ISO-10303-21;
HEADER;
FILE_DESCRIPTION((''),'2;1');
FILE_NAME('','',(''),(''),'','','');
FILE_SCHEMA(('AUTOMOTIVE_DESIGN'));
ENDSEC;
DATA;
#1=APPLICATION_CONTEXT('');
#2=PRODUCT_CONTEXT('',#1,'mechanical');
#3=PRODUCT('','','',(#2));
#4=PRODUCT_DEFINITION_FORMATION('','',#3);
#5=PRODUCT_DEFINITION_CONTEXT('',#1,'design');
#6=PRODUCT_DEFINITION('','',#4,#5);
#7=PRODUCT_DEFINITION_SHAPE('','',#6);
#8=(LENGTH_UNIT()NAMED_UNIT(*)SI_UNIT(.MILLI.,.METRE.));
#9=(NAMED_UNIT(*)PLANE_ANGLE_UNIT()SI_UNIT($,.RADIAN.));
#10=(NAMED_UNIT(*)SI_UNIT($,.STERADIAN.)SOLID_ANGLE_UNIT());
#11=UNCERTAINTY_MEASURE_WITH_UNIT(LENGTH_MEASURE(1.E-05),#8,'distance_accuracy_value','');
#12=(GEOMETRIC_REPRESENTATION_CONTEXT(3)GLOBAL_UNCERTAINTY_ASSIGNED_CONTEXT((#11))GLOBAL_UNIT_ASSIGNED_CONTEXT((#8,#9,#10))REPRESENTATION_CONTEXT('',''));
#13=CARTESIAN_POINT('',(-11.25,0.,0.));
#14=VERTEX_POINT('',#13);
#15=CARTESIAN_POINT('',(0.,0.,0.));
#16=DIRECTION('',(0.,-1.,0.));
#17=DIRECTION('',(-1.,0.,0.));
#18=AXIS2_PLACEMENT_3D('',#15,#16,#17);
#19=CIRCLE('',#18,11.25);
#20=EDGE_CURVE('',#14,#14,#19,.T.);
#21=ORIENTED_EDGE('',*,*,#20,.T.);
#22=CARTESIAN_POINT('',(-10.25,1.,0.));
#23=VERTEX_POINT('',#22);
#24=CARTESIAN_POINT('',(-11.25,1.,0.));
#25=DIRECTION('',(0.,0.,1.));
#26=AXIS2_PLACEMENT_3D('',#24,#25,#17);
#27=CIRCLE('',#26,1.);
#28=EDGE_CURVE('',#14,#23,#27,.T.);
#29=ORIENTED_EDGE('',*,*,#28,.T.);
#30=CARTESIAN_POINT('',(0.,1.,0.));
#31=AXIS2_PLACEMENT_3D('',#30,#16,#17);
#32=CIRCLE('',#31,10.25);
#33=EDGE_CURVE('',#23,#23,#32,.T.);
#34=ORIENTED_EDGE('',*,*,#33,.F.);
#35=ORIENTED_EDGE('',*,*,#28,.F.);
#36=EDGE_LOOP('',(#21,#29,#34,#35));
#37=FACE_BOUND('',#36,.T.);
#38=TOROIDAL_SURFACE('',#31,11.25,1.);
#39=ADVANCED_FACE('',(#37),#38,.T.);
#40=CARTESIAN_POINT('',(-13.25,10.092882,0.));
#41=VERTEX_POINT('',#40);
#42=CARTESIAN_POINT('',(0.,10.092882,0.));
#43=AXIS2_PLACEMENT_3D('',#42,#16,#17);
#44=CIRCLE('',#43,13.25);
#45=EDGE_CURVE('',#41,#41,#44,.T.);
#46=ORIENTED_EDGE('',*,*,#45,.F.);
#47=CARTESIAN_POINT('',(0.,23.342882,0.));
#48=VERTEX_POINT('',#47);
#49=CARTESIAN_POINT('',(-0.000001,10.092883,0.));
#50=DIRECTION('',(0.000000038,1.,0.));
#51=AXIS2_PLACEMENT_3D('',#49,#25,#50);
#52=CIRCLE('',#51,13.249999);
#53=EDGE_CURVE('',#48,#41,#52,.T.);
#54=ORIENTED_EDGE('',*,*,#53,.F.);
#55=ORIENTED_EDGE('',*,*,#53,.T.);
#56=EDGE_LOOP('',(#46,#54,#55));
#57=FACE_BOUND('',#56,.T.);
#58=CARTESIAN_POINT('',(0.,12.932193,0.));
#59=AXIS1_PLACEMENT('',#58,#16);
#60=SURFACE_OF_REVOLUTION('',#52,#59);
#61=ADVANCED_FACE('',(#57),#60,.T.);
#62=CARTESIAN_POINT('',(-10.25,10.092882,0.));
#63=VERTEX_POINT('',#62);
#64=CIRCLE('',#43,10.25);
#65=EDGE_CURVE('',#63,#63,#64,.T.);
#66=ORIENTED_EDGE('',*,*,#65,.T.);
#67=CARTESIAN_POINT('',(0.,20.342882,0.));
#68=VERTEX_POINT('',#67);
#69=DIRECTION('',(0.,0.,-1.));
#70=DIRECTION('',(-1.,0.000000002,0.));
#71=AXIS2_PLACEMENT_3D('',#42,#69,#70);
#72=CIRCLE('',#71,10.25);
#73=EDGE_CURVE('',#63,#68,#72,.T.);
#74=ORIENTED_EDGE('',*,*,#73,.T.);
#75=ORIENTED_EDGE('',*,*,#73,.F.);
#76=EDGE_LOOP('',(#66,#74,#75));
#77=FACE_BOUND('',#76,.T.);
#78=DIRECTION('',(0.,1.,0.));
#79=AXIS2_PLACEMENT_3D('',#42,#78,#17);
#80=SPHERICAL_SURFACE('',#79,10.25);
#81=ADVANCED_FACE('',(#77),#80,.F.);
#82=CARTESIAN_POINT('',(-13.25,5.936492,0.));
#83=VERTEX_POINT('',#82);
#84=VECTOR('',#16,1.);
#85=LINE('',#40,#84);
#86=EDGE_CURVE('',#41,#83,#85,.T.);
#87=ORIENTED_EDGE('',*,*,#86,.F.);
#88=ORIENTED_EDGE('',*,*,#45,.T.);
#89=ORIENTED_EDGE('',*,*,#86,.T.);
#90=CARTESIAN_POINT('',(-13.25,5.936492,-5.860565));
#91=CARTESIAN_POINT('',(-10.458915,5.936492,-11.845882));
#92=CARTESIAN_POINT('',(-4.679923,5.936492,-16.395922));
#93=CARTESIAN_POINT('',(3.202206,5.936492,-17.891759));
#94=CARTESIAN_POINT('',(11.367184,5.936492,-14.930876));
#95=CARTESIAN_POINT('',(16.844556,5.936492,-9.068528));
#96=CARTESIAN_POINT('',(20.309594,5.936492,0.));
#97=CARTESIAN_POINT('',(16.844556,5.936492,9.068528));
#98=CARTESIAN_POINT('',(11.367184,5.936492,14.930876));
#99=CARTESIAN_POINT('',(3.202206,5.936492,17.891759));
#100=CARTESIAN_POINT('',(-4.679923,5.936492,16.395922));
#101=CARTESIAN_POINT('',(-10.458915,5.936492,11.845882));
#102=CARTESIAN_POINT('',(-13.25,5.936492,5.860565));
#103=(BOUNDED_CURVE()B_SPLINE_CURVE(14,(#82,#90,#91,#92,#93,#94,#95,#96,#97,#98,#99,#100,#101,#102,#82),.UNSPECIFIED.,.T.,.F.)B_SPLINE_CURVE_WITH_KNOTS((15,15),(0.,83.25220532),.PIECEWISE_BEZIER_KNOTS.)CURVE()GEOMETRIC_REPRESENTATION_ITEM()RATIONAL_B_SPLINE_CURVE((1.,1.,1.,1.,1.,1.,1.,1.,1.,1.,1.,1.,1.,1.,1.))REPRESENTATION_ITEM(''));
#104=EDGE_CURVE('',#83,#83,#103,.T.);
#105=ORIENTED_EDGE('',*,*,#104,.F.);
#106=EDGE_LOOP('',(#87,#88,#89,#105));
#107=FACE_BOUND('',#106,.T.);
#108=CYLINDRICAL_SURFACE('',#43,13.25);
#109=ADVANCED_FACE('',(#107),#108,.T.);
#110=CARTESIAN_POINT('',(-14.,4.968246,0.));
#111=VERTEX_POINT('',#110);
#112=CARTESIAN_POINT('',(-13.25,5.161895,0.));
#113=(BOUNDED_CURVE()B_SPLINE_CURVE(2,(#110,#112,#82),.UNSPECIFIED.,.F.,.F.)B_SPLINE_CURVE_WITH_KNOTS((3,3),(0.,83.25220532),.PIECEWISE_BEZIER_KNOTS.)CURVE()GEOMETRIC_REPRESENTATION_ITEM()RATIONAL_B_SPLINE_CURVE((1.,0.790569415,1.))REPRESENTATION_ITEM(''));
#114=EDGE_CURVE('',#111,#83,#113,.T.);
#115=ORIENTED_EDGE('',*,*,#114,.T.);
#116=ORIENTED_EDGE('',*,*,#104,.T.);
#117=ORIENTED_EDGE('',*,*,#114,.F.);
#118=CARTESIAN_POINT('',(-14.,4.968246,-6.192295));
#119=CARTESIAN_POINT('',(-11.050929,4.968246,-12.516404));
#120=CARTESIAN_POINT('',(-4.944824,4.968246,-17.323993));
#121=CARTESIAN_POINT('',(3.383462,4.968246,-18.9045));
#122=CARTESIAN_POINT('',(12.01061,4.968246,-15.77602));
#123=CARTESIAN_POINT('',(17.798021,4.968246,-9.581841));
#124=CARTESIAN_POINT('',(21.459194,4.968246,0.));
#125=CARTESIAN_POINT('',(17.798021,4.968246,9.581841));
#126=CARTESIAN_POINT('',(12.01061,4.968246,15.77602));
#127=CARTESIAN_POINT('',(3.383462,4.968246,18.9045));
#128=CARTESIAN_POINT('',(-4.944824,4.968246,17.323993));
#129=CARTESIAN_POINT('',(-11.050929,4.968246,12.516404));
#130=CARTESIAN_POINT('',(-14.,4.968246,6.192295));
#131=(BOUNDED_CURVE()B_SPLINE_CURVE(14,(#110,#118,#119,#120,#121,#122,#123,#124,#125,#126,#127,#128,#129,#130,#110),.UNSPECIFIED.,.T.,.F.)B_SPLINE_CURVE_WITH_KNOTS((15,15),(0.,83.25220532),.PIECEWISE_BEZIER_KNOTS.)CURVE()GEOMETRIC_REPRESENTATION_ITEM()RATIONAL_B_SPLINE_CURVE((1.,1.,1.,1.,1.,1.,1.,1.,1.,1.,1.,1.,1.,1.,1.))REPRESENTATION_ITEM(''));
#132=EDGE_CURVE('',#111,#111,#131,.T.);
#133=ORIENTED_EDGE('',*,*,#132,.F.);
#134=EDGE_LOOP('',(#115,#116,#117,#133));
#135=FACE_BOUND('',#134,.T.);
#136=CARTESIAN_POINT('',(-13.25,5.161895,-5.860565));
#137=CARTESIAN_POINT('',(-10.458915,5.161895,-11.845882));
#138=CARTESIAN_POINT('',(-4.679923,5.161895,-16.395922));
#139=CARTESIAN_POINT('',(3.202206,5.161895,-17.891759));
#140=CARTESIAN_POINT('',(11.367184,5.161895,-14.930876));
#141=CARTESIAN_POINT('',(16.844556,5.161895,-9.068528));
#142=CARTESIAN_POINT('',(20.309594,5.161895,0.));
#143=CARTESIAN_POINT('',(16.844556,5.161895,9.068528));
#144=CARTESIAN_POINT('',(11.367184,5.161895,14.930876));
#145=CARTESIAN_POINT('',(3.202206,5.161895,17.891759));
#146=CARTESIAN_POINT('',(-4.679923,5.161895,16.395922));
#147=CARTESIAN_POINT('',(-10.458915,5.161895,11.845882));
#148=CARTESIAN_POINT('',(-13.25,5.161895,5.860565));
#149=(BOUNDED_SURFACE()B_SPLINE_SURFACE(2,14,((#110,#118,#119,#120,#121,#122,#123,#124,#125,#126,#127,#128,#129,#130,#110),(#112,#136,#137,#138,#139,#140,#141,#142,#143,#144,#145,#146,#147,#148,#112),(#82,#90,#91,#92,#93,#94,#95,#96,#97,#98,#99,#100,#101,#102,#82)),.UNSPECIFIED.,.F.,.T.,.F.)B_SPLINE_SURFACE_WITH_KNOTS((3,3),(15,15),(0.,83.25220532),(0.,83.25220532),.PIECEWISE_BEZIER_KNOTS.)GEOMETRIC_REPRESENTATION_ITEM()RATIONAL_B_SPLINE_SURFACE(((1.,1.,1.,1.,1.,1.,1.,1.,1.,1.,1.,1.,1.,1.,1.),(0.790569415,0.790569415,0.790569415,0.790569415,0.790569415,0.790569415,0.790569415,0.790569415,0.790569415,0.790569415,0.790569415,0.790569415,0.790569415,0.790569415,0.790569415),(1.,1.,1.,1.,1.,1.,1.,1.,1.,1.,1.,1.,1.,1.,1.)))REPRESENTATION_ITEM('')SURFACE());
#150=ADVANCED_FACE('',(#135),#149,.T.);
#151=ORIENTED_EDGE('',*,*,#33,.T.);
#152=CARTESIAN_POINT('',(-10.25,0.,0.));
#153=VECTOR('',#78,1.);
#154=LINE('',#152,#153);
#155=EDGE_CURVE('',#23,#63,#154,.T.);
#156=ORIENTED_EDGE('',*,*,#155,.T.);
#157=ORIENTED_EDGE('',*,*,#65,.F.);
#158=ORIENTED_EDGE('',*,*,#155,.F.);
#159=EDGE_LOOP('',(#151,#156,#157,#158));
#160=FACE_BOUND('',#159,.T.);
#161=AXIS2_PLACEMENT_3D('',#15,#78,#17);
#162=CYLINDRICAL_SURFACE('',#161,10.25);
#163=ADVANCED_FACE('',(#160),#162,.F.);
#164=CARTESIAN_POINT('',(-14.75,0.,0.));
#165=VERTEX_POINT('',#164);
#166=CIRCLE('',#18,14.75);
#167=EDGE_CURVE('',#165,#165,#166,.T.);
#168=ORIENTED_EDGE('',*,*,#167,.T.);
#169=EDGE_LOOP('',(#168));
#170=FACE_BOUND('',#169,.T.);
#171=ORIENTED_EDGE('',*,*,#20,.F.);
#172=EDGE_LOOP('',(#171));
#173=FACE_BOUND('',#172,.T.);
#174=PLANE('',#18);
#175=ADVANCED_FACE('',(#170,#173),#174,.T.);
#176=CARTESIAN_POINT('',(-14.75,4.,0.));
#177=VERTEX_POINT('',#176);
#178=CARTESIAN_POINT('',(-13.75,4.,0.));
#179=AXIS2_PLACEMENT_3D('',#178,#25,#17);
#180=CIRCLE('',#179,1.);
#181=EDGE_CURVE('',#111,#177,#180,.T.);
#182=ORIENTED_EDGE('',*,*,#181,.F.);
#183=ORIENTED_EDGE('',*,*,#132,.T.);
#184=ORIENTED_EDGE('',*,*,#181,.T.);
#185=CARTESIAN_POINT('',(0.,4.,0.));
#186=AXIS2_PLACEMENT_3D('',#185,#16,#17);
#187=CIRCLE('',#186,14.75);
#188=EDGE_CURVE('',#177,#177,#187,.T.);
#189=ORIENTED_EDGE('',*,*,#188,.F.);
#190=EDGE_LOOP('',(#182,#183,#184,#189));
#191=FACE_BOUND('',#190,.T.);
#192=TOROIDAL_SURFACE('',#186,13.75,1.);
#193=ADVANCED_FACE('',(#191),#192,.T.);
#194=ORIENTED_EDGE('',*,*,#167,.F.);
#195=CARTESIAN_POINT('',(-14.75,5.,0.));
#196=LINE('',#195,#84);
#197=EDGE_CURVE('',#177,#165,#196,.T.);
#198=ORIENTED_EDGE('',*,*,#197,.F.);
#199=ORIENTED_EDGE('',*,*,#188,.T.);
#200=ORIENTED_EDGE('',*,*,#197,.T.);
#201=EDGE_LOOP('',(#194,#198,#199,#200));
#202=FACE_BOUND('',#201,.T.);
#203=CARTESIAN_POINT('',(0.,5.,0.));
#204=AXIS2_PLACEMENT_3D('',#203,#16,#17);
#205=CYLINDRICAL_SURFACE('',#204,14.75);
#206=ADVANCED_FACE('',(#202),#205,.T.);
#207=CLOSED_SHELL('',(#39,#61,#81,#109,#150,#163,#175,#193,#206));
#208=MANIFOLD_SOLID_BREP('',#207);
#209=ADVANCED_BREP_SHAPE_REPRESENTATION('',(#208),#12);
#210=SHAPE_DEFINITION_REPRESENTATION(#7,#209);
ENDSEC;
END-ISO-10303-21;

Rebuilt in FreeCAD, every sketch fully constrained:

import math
import FreeCAD as App
import Part
import Sketcher
from FreeCAD import Vector
Q = App.Units.Quantity


def edges_at(feature, points):
    """Names of the edges that pass closest to the given points."""
    edges = feature.Shape.Edges
    near = lambda p: min(range(len(edges)), key=lambda i: edges[i].distToShape(Part.Vertex(*p))[0])
    return sorted({f"Edge{near(p) + 1}" for p in points})

doc = App.newDocument("Part")
body = doc.addObject("PartDesign::Body", "Body")

sketch1 = body.newObject("Sketcher::SketchObject", "Sketch")
sketch1.AttachmentSupport = (doc.getObject("XY_Plane"), [""])
sketch1.MapMode = "FlatFace"
sketch1.addGeometry(Part.ArcOfCircle(Part.Circle(Vector(0, 10.1, 0), Vector(0, 0, 1), 10.3), math.radians(90), math.radians(180)), False)
sketch1.addGeometry(Part.LineSegment(Vector(0, 20.3, 0), Vector(0, 23.3, 0)), False)
sketch1.addGeometry(Part.ArcOfCircle(Part.Circle(Vector(0, 10.1, 0), Vector(0, 0, 1), 13.2), math.radians(90), math.radians(180)), False)
sketch1.addGeometry(Part.LineSegment(Vector(-13.2, 10.1, 0), Vector(-13.2, 5, 0)), False)
sketch1.addGeometry(Part.LineSegment(Vector(-13.2, 5, 0), Vector(-14.8, 5, 0)), False)
sketch1.addGeometry(Part.LineSegment(Vector(-14.8, 5, 0), Vector(-14.8, 0, 0)), False)
sketch1.addGeometry(Part.LineSegment(Vector(-14.8, 0, 0), Vector(-10.2, 0, 0)), False)
sketch1.addGeometry(Part.LineSegment(Vector(-10.2, 0, 0), Vector(-10.2, 10.1, 0)), False)
sketch1.addConstraint(Sketcher.Constraint("Coincident", 0, 1, 1, 1))
sketch1.addConstraint(Sketcher.Constraint("Coincident", 1, 2, 2, 1))
sketch1.addConstraint(Sketcher.Constraint("Tangent", 2, 2, 3, 1))
sketch1.addConstraint(Sketcher.Constraint("Coincident", 3, 2, 4, 1))
sketch1.addConstraint(Sketcher.Constraint("Coincident", 4, 2, 5, 1))
sketch1.addConstraint(Sketcher.Constraint("Coincident", 5, 2, 6, 1))
sketch1.addConstraint(Sketcher.Constraint("Coincident", 6, 2, 7, 1))
sketch1.addConstraint(Sketcher.Constraint("Tangent", 7, 2, 0, 2))
sketch1.addConstraint(Sketcher.Constraint("Vertical", 1))
sketch1.addConstraint(Sketcher.Constraint("Vertical", 3))
sketch1.addConstraint(Sketcher.Constraint("Horizontal", 4))
sketch1.addConstraint(Sketcher.Constraint("Vertical", 5))
sketch1.addConstraint(Sketcher.Constraint("Horizontal", 6))
sketch1.addConstraint(Sketcher.Constraint("Vertical", 7))
sketch1.addConstraint(Sketcher.Constraint("Coincident", 2, 3, 0, 3))
sketch1.addConstraint(Sketcher.Constraint("PointOnObject", 0, 3, -2))
sketch1.addConstraint(Sketcher.Constraint("PointOnObject", 0, 1, -2))
sketch1.addConstraint(Sketcher.Constraint("PointOnObject", 5, 2, -1))
sketch1.addConstraint(Sketcher.Constraint("DistanceY", 1, 1, 1, 2, Q("3 mm")))
sketch1.addConstraint(Sketcher.Constraint("DistanceY", 5, 2, 5, 1, Q("5 mm")))
sketch1.addConstraint(Sketcher.Constraint("Radius", 0, Q("10.25 mm")))
sketch1.addConstraint(Sketcher.Constraint("DistanceX", 4, 2, 4, 1, Q("1.5 mm")))
sketch1.addConstraint(Sketcher.Constraint("DistanceY", 3, 2, 3, 1, Q("5.092882 mm")))
revolution = body.newObject("PartDesign::Revolution", "Revolution")
revolution.Profile = sketch1
revolution.ReferenceAxis = (sketch1, ["V_Axis"])
revolution.Angle = 360
doc.recompute()

fillet = body.newObject("PartDesign::Fillet", "Fillet")
fillet.Base = (revolution, edges_at(revolution, [(14.75, 5, 0)]))
fillet.Radius = 1
doc.recompute()

fillet2 = body.newObject("PartDesign::Fillet", "Fillet001")
fillet2.Base = (fillet, edges_at(fillet, [(10.25, 0, 0)]))
fillet2.Radius = 1
doc.recompute()

fillet3 = body.newObject("PartDesign::Fillet", "Fillet002")
fillet3.Base = (fillet2, edges_at(fillet2, [(13.25, 5, 0)]))
fillet3.Radius = 1

doc.recompute()
